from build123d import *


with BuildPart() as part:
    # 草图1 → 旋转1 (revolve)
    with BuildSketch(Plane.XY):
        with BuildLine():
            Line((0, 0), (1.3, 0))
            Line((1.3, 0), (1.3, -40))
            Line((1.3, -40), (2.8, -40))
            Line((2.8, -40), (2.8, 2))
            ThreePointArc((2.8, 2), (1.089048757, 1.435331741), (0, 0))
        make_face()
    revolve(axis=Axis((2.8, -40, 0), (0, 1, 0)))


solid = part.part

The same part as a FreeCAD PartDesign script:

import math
import FreeCAD as App
import Part
import Sketcher

V = App.Vector
Q = App.Units.Quantity

doc = App.newDocument("Part")
body = doc.addObject("PartDesign::Body", "Body")

sketch1 = body.newObject("Sketcher::SketchObject", "Sketch")
sketch1.AttachmentSupport = (doc.getObject("XY_Plane"), [""])
sketch1.MapMode = "FlatFace"
sketch1.addGeometry([
    Part.LineSegment(V(0, 0, 0), V(1.3, 0, 0)),
    Part.LineSegment(V(1.3, 0, 0), V(1.3, -40, 0)),
    Part.LineSegment(V(1.3, -40, 0), V(2.8, -40, 0)),
    Part.LineSegment(V(2.8, -40, 0), V(2.8, 2, 0)),
    Part.ArcOfCircle(Part.Circle(V(2.9, -1, 0), V(0, 0, 1), 3), math.radians(91), math.radians(160)),
], False)
sketch1.addGeometry(Part.LineSegment(V(2.8, -40, 0), V(2.8, 2, 0)), True)
sketch1.addConstraint([
    Sketcher.Constraint("Coincident", 0, 2, 1, 1),
    Sketcher.Constraint("Coincident", 1, 2, 2, 1),
    Sketcher.Constraint("Coincident", 2, 2, 3, 1),
    Sketcher.Constraint("Coincident", 3, 2, 4, 1),
    Sketcher.Constraint("Coincident", 4, 2, 0, 1),
    Sketcher.Constraint("Horizontal", 0),
    Sketcher.Constraint("Vertical", 1),
    Sketcher.Constraint("Horizontal", 2),
    Sketcher.Constraint("Vertical", 3),
    Sketcher.Constraint("Vertical", 5),
    Sketcher.Constraint("Coincident", 4, 2, -1, 1),
    Sketcher.Constraint("Coincident", 5, 1, 2, 2),
    Sketcher.Constraint("Equal", 3, 5),
    Sketcher.Constraint("DistanceY", 1, 2, 1, 1, Q("40 mm")),
    Sketcher.Constraint("DistanceY", 3, 1, 3, 2, Q("42 mm")),
    Sketcher.Constraint("DistanceX", 0, 1, 0, 2, Q("1.3 mm")),
    Sketcher.Constraint("DistanceX", 2, 1, 2, 2, Q("1.5 mm")),
    Sketcher.Constraint("Radius", 4, Q("3.033945 mm")),
])
revolution = body.newObject("PartDesign::Revolution", "Revolution")
revolution.Profile = sketch1
revolution.ReferenceAxis = (sketch1, ["Axis0"])
revolution.Angle = 360

doc.recompute()
